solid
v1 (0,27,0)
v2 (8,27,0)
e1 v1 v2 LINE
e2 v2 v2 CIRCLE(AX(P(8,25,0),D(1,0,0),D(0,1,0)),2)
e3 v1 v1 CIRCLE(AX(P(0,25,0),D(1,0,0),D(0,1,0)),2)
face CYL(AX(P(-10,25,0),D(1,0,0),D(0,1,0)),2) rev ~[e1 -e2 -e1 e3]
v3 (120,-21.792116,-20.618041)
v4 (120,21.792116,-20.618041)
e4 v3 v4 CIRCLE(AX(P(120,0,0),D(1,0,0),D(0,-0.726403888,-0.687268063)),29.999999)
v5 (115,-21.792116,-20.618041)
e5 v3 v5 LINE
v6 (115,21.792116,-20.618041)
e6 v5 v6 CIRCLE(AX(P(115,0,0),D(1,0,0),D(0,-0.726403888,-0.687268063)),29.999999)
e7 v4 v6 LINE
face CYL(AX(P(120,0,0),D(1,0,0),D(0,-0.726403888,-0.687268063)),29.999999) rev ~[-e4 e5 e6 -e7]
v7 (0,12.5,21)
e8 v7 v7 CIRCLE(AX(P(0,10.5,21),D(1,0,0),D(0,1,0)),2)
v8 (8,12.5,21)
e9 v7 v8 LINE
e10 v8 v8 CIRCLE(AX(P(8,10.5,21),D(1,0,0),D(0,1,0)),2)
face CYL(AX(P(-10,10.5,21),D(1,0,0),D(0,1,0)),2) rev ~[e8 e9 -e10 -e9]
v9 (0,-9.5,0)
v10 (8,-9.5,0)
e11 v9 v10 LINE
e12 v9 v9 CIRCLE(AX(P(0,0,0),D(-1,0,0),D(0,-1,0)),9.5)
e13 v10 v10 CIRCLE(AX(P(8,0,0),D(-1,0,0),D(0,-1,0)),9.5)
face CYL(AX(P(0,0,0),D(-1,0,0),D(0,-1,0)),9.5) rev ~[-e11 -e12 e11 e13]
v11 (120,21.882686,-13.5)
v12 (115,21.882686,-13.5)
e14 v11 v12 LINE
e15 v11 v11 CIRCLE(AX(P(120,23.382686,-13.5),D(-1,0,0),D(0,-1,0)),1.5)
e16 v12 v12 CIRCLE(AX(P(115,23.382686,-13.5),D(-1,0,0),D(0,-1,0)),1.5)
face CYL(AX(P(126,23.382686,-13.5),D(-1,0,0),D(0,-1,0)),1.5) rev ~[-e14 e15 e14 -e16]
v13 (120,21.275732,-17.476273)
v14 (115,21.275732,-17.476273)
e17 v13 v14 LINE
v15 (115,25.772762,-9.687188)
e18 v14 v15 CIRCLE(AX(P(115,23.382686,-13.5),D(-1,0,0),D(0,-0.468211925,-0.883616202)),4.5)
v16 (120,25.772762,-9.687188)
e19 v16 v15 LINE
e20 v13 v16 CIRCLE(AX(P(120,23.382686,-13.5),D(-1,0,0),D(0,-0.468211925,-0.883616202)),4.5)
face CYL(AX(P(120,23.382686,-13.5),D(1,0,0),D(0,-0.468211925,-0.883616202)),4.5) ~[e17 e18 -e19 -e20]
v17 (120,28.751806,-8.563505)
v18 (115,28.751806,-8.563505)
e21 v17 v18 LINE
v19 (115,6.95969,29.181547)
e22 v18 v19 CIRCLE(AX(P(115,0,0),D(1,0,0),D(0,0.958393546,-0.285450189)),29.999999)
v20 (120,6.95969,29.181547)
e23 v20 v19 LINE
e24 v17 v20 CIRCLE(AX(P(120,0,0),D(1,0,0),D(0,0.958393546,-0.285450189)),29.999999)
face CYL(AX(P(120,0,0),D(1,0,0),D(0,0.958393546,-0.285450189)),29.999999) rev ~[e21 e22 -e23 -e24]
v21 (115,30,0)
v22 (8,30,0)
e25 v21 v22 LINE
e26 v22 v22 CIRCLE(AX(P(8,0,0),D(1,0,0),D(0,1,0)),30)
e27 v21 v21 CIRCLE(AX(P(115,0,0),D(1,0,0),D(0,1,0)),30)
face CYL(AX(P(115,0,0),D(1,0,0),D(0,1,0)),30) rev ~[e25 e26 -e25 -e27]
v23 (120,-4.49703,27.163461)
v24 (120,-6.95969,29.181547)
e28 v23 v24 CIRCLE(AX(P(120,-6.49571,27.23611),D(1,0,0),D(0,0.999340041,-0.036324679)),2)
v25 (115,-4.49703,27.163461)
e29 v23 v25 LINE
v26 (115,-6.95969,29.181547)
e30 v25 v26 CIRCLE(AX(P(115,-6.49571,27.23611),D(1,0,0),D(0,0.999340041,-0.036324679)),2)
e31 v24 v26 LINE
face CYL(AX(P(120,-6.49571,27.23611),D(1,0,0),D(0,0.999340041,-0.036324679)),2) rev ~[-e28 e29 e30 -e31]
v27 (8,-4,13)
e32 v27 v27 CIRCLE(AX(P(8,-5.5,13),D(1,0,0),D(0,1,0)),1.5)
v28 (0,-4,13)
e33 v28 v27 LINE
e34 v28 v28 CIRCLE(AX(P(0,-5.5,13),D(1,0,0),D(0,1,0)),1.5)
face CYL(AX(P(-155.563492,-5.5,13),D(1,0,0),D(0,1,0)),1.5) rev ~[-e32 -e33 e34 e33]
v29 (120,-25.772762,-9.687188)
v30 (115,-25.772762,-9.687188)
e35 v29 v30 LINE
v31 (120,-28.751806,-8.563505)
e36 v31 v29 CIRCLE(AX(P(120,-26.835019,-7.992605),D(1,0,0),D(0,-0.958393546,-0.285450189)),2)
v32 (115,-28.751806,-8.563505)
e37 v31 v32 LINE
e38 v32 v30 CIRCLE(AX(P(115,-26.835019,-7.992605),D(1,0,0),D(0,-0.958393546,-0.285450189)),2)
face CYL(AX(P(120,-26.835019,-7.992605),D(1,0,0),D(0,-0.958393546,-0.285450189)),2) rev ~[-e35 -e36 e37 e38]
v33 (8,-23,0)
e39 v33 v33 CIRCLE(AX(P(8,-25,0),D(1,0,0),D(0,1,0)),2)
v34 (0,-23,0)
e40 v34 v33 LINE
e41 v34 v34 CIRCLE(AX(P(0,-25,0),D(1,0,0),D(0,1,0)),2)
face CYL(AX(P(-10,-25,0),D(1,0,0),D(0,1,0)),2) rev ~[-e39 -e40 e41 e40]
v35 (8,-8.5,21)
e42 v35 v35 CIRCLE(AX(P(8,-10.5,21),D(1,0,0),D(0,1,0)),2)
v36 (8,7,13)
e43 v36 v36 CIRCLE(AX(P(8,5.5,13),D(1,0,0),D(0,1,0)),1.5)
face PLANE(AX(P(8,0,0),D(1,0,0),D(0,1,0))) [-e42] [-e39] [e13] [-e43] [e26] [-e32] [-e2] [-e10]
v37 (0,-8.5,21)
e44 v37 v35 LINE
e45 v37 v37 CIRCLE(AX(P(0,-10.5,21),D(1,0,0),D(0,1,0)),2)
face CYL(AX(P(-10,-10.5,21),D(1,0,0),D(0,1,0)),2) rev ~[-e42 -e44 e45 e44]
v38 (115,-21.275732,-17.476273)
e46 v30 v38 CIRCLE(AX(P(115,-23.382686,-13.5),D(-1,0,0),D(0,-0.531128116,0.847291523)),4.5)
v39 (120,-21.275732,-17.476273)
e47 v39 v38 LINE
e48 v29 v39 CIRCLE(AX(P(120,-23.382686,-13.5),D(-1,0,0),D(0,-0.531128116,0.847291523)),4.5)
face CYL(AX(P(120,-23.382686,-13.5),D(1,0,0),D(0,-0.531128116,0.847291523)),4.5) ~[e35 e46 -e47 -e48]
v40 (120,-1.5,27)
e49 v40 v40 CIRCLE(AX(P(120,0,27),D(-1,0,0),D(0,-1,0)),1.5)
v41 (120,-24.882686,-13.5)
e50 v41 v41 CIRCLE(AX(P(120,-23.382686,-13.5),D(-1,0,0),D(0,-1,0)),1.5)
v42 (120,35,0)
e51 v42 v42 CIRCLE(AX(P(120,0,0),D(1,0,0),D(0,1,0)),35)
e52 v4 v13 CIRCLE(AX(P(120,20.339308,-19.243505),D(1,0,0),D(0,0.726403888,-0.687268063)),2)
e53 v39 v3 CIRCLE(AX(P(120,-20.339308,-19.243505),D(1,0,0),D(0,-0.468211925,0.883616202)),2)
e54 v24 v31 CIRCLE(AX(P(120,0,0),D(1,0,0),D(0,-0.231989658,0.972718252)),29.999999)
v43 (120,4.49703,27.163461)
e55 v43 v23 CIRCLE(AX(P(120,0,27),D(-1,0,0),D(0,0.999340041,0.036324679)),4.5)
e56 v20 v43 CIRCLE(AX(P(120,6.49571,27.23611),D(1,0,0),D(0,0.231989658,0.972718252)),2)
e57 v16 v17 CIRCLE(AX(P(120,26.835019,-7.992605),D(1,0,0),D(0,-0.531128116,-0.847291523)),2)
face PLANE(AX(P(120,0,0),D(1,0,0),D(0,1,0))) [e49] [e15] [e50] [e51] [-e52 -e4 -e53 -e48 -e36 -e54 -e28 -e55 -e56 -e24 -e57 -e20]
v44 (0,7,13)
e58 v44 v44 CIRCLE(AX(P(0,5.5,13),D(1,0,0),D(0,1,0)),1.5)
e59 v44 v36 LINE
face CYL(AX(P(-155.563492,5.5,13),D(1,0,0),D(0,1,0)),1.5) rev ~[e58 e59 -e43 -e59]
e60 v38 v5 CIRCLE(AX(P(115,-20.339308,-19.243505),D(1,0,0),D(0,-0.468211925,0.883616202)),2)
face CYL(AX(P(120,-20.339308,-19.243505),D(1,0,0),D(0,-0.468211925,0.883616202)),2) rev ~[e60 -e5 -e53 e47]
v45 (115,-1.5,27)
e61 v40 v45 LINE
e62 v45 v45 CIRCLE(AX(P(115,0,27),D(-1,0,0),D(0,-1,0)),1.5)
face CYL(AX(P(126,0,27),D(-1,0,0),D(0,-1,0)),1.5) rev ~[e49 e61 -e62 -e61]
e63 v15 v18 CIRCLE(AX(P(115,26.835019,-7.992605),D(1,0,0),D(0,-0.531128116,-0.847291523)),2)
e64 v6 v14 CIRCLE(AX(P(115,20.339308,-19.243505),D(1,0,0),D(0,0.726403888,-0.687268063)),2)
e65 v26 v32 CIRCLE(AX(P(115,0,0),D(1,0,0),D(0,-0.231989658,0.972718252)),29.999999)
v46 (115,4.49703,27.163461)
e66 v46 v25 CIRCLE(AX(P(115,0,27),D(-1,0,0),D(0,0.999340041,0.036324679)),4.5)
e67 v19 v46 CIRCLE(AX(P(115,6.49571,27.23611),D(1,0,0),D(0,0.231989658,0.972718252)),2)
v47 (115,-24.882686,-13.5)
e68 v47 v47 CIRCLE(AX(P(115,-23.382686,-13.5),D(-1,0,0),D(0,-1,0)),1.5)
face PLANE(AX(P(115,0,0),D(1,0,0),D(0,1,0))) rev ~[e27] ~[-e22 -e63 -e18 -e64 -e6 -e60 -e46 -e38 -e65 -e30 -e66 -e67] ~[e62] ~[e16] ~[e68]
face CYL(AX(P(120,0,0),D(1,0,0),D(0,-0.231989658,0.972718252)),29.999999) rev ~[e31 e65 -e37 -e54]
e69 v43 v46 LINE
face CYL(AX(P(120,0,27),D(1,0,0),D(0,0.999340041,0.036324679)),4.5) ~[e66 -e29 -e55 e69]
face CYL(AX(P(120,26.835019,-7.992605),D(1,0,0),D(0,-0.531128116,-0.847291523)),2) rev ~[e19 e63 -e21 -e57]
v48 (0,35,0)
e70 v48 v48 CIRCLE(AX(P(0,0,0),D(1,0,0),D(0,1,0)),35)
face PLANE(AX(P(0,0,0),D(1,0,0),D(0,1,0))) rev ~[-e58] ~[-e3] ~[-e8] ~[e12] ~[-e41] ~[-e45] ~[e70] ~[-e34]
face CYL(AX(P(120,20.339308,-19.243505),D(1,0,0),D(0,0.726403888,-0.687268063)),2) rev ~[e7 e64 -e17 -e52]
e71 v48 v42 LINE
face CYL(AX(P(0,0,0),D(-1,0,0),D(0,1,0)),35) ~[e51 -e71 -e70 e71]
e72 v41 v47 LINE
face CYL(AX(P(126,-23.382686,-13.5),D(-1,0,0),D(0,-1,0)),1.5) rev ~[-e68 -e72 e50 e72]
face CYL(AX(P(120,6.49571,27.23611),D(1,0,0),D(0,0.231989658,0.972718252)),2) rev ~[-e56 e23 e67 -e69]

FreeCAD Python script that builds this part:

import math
import FreeCAD as App
import Part
import Sketcher
Q = App.Units.Quantity

doc = App.newDocument("Part")
body = doc.addObject("PartDesign::Body", "Body")

# Sketch on YZ plane
sketch1 = doc.addObject("Sketcher::SketchObject", "Sketch")
body.addObject(sketch1)
sketch1.AttachmentSupport = (doc.YZ_Plane, [""])
sketch1.MapMode = "FlatFace"
sketch1.addGeometry(Part.Circle(App.Vector(0, 0, 0), App.Vector(0, 0, 1), 35), False)
sketch1.addConstraint([
    Sketcher.Constraint("Coincident", 0, 3, -1, 1),
    Sketcher.Constraint("Diameter", 0, Q("70 mm")),
])
pad1 = doc.addObject("PartDesign::Pad", "Pad")
body.addObject(pad1)
pad1.Profile = sketch1
pad1.Length = 120

# Sketch on YZ plane
sketch2 = doc.addObject("Sketcher::SketchObject", "Sketch001")
body.addObject(sketch2)
sketch2.AttachmentSupport = (doc.YZ_Plane, [""])
sketch2.MapMode = "FlatFace"
sketch2.AttachmentOffset = App.Placement(App.Vector(0, 0, 120), App.Rotation())
sketch2.addGeometry([
    Part.ArcOfCircle(Part.Circle(App.Vector(-20.3, -19.2, 0), App.Vector(0, 0, 1), 2), math.radians(118), math.radians(223)),  # 0
    Part.ArcOfCircle(Part.Circle(App.Vector(0, 0, 0), App.Vector(0, 0, 1), 30), math.radians(-137), math.radians(-43)),  # 1
    Part.ArcOfCircle(Part.Circle(App.Vector(20.3, -19.2, 0), App.Vector(0, 0, 1), 2), math.radians(-43), math.radians(62)),  # 2
    Part.ArcOfCircle(Part.Circle(App.Vector(23.4, -13.5, 0), App.Vector(0, 0, 1), 4.5), math.radians(58), math.radians(242)),  # 3
    Part.ArcOfCircle(Part.Circle(App.Vector(26.8, -8, 0), App.Vector(0, 0, 1), 2), math.radians(-122), math.radians(-17)),  # 4
    Part.ArcOfCircle(Part.Circle(App.Vector(0, 0, 0), App.Vector(0, 0, 1), 30), math.radians(-17), math.radians(77)),  # 5
    Part.ArcOfCircle(Part.Circle(App.Vector(6.5, 27.2, 0), App.Vector(0, 0, 1), 2), math.radians(77), math.radians(182)),  # 6
    Part.ArcOfCircle(Part.Circle(App.Vector(0, 27, 0), App.Vector(0, 0, 1), 4.5), math.radians(178), math.radians(362)),  # 7
    Part.ArcOfCircle(Part.Circle(App.Vector(-6.5, 27.2, 0), App.Vector(0, 0, 1), 2), math.radians(-2), math.radians(103)),  # 8
    Part.ArcOfCircle(Part.Circle(App.Vector(0, 0, 0), App.Vector(0, 0, 1), 30), math.radians(103), math.radians(197)),  # 9
    Part.ArcOfCircle(Part.Circle(App.Vector(-26.8, -8, 0), App.Vector(0, 0, 1), 2), math.radians(-163), math.radians(-58)),  # 10
    Part.ArcOfCircle(Part.Circle(App.Vector(-23.4, -13.5, 0), App.Vector(0, 0, 1), 4.5), math.radians(-62), math.radians(122)),  # 11
], False)
sketch2.addConstraint([
    Sketcher.Constraint("Tangent", 0, 2, 1, 1),
    Sketcher.Constraint("Tangent", 1, 2, 2, 1),
    Sketcher.Constraint("Tangent", 2, 2, 3, 2),
    Sketcher.Constraint("Tangent", 3, 1, 4, 1),
    Sketcher.Constraint("Tangent", 4, 2, 5, 1),
    Sketcher.Constraint("Tangent", 5, 2, 6, 1),
    Sketcher.Constraint("Tangent", 6, 2, 7, 2),
    Sketcher.Constraint("Tangent", 7, 1, 8, 1),
    Sketcher.Constraint("Tangent", 8, 2, 9, 1),
    Sketcher.Constraint("Tangent", 9, 2, 10, 1),
    Sketcher.Constraint("Tangent", 10, 2, 11, 2),
    Sketcher.Constraint("Tangent", 11, 1, 0, 1),
    Sketcher.Constraint("Coincident", 1, 3, -1, 1),
    Sketcher.Constraint("Coincident", 5, 3, -1, 1),
    Sketcher.Constraint("Coincident", 9, 3, -1, 1),
    Sketcher.Constraint("Equal", 0, 2),
    Sketcher.Constraint("Equal", 2, 4),
    Sketcher.Constraint("Equal", 1, 5),
    Sketcher.Constraint("Equal", 4, 6),
    Sketcher.Constraint("Equal", 3, 7),
    Sketcher.Constraint("Equal", 6, 8),
    Sketcher.Constraint("Equal", 5, 9),
    Sketcher.Constraint("Equal", 8, 10),
    Sketcher.Constraint("Equal", 7, 11),
    Sketcher.Constraint("Symmetric", 3, 3, 11, 3, -2),
    Sketcher.Constraint("PointOnObject", 7, 3, -2),
    Sketcher.Constraint("Radius", 0, Q("2 mm")),
    Sketcher.Constraint("Radius", 1, Q("29.999999 mm")),
    Sketcher.Constraint("Radius", 3, Q("4.5 mm")),
    Sketcher.Constraint("DistanceY", -1, 1, 7, 3, Q("27 mm")),
    Sketcher.Constraint("DistanceY", 3, 3, -1, 1, Q("13.5 mm")),
    Sketcher.Constraint("DistanceY", 2, 3, 4, 2, Q("10.68 mm")),
])
pocket1 = doc.addObject("PartDesign::Pocket", "Pocket")
body.addObject(pocket1)
pocket1.Profile = sketch2
pocket1.Length = 5

# Sketch on YZ plane
sketch3 = doc.addObject("Sketcher::SketchObject", "Sketch002")
body.addObject(sketch3)
sketch3.AttachmentSupport = (doc.YZ_Plane, [""])
sketch3.MapMode = "FlatFace"
sketch3.AttachmentOffset = App.Placement(App.Vector(0, 0, 115), App.Rotation())
sketch3.addGeometry(Part.Circle(App.Vector(0, 0, 0), App.Vector(0, 0, 1), 30), False)
sketch3.addConstraint([
    Sketcher.Constraint("Coincident", 0, 3, -1, 1),
    Sketcher.Constraint("Diameter", 0, Q("60 mm")),
])
pocket2 = doc.addObject("PartDesign::Pocket", "Pocket001")
body.addObject(pocket2)
pocket2.Profile = sketch3
pocket2.Length = 107

# Sketch on YZ plane
sketch4 = doc.addObject("Sketcher::SketchObject", "Sketch003")
body.addObject(sketch4)
sketch4.AttachmentSupport = (doc.YZ_Plane, [""])
sketch4.MapMode = "FlatFace"
sketch4.AttachmentOffset = App.Placement(App.Vector(0, 0, 120), App.Rotation())
sketch4.addGeometry([
    Part.Circle(App.Vector(-23.4, -13.5, 0), App.Vector(0, 0, 1), 1.5),
    Part.Circle(App.Vector(0, 27, 0), App.Vector(0, 0, 1), 1.5),
    Part.Circle(App.Vector(23.4, -13.5, 0), App.Vector(0, 0, 1), 1.5),
], False)
sketch4.addConstraint([
    Sketcher.Constraint("Equal", 0, 1),
    Sketcher.Constraint("Equal", 1, 2),
    Sketcher.Constraint("Symmetric", 0, 3, 2, 3, -2),
    Sketcher.Constraint("PointOnObject", 1, 3, -2),
    Sketcher.Constraint("Diameter", 0, Q("3 mm")),
    Sketcher.Constraint("DistanceY", -1, 1, 1, 3, Q("27 mm")),
    Sketcher.Constraint("DistanceY", 0, 3, -1, 1, Q("13.5 mm")),
    Sketcher.Constraint("DistanceX", 0, 3, 2, 3, Q("46.765372 mm")),
])
doc.recompute()
hole = doc.addObject("PartDesign::Hole", "Hole")
body.addObject(hole)
hole.Profile = sketch4
hole.ThreadType = "None"
hole.Diameter = 3
hole.DepthType = "Dimension"
hole.Depth = 6
hole.DrillPoint = "Angled"
hole.DrillPointAngle = 118

# Sketch on YZ plane
sketch5 = doc.addObject("Sketcher::SketchObject", "Sketch004")
body.addObject(sketch5)
sketch5.AttachmentSupport = (doc.YZ_Plane, [""])
sketch5.MapMode = "FlatFace"
sketch5.addGeometry([
    Part.Circle(App.Vector(25, 0, 0), App.Vector(0, 0, 1), 2),
    Part.Circle(App.Vector(-25, 0, 0), App.Vector(0, 0, 1), 2),
], False)
sketch5.addConstraint([
    Sketcher.Constraint("Equal", 0, 1),
    Sketcher.Constraint("Symmetric", 0, 3, 1, 3, -1, 1),
    Sketcher.Constraint("PointOnObject", 0, 3, -1),
    Sketcher.Constraint("Diameter", 0, Q("4 mm")),
    Sketcher.Constraint("DistanceX", -1, 1, 0, 3, Q("25 mm")),
])
doc.recompute()
hole2 = doc.addObject("PartDesign::Hole", "Hole001")
body.addObject(hole2)
hole2.Profile = sketch5
hole2.ThreadType = "None"
hole2.Diameter = 4
hole2.DepthType = "Dimension"
hole2.Depth = 10
hole2.DrillPoint = "Angled"
hole2.DrillPointAngle = 118
hole2.Reversed = True

# Sketch on YZ plane
sketch6 = doc.addObject("Sketcher::SketchObject", "Sketch005")
body.addObject(sketch6)
sketch6.AttachmentSupport = (doc.YZ_Plane, [""])
sketch6.MapMode = "FlatFace"
sketch6.addGeometry(Part.Circle(App.Vector(0, 0, 0), App.Vector(0, 0, 1), 10), False)
sketch6.addConstraint([
    Sketcher.Constraint("Coincident", 0, 3, -1, 1),
    Sketcher.Constraint("Diameter", 0, Q("19 mm")),
])
pocket3 = doc.addObject("PartDesign::Pocket", "Pocket002")
body.addObject(pocket3)
pocket3.Profile = sketch6
pocket3.Length = 25
pocket3.Reversed = True

# Sketch on YZ plane
sketch7 = doc.addObject("Sketcher::SketchObject", "Sketch006")
body.addObject(sketch7)
sketch7.AttachmentSupport = (doc.YZ_Plane, [""])
sketch7.MapMode = "FlatFace"
sketch7.addGeometry([
    Part.Circle(App.Vector(10.5, 21, 0), App.Vector(0, 0, 1), 2),
    Part.Circle(App.Vector(-10.5, 21, 0), App.Vector(0, 0, 1), 2),
], False)
sketch7.addConstraint([
    Sketcher.Constraint("Equal", 0, 1),
    Sketcher.Constraint("Symmetric", 0, 3, 1, 3, -2),
    Sketcher.Constraint("Diameter", 0, Q("4 mm")),
    Sketcher.Constraint("DistanceY", -1, 1, 0, 3, Q("21 mm")),
    Sketcher.Constraint("DistanceX", 1, 3, 0, 3, Q("21 mm")),
])
doc.recompute()
hole3 = doc.addObject("PartDesign::Hole", "Hole002")
body.addObject(hole3)
hole3.Profile = sketch7
hole3.ThreadType = "None"
hole3.Diameter = 4
hole3.DepthType = "Dimension"
hole3.Depth = 10
hole3.DrillPoint = "Angled"
hole3.DrillPointAngle = 118
hole3.Reversed = True

# Sketch on YZ plane
sketch8 = doc.addObject("Sketcher::SketchObject", "Sketch007")
body.addObject(sketch8)
sketch8.AttachmentSupport = (doc.YZ_Plane, [""])
sketch8.MapMode = "FlatFace"
sketch8.addGeometry([
    Part.Circle(App.Vector(5.5, 13, 0), App.Vector(0, 0, 1), 1.5),
    Part.Circle(App.Vector(-5.5, 13, 0), App.Vector(0, 0, 1), 1.5),
], False)
sketch8.addConstraint([
    Sketcher.Constraint("Equal", 0, 1),
    Sketcher.Constraint("Symmetric", 0, 3, 1, 3, -2),
    Sketcher.Constraint("Diameter", 0, Q("3 mm")),
    Sketcher.Constraint("DistanceY", -1, 1, 0, 3, Q("13 mm")),
    Sketcher.Constraint("DistanceX", 1, 3, 0, 3, Q("11 mm")),
])
doc.recompute()
hole4 = doc.addObject("PartDesign::Hole", "Hole003")
body.addObject(hole4)
hole4.Profile = sketch8
hole4.ThreadType = "None"
hole4.Diameter = 3
hole4.DepthType = "ThroughAll"
hole4.Reversed = True

doc.recompute()
